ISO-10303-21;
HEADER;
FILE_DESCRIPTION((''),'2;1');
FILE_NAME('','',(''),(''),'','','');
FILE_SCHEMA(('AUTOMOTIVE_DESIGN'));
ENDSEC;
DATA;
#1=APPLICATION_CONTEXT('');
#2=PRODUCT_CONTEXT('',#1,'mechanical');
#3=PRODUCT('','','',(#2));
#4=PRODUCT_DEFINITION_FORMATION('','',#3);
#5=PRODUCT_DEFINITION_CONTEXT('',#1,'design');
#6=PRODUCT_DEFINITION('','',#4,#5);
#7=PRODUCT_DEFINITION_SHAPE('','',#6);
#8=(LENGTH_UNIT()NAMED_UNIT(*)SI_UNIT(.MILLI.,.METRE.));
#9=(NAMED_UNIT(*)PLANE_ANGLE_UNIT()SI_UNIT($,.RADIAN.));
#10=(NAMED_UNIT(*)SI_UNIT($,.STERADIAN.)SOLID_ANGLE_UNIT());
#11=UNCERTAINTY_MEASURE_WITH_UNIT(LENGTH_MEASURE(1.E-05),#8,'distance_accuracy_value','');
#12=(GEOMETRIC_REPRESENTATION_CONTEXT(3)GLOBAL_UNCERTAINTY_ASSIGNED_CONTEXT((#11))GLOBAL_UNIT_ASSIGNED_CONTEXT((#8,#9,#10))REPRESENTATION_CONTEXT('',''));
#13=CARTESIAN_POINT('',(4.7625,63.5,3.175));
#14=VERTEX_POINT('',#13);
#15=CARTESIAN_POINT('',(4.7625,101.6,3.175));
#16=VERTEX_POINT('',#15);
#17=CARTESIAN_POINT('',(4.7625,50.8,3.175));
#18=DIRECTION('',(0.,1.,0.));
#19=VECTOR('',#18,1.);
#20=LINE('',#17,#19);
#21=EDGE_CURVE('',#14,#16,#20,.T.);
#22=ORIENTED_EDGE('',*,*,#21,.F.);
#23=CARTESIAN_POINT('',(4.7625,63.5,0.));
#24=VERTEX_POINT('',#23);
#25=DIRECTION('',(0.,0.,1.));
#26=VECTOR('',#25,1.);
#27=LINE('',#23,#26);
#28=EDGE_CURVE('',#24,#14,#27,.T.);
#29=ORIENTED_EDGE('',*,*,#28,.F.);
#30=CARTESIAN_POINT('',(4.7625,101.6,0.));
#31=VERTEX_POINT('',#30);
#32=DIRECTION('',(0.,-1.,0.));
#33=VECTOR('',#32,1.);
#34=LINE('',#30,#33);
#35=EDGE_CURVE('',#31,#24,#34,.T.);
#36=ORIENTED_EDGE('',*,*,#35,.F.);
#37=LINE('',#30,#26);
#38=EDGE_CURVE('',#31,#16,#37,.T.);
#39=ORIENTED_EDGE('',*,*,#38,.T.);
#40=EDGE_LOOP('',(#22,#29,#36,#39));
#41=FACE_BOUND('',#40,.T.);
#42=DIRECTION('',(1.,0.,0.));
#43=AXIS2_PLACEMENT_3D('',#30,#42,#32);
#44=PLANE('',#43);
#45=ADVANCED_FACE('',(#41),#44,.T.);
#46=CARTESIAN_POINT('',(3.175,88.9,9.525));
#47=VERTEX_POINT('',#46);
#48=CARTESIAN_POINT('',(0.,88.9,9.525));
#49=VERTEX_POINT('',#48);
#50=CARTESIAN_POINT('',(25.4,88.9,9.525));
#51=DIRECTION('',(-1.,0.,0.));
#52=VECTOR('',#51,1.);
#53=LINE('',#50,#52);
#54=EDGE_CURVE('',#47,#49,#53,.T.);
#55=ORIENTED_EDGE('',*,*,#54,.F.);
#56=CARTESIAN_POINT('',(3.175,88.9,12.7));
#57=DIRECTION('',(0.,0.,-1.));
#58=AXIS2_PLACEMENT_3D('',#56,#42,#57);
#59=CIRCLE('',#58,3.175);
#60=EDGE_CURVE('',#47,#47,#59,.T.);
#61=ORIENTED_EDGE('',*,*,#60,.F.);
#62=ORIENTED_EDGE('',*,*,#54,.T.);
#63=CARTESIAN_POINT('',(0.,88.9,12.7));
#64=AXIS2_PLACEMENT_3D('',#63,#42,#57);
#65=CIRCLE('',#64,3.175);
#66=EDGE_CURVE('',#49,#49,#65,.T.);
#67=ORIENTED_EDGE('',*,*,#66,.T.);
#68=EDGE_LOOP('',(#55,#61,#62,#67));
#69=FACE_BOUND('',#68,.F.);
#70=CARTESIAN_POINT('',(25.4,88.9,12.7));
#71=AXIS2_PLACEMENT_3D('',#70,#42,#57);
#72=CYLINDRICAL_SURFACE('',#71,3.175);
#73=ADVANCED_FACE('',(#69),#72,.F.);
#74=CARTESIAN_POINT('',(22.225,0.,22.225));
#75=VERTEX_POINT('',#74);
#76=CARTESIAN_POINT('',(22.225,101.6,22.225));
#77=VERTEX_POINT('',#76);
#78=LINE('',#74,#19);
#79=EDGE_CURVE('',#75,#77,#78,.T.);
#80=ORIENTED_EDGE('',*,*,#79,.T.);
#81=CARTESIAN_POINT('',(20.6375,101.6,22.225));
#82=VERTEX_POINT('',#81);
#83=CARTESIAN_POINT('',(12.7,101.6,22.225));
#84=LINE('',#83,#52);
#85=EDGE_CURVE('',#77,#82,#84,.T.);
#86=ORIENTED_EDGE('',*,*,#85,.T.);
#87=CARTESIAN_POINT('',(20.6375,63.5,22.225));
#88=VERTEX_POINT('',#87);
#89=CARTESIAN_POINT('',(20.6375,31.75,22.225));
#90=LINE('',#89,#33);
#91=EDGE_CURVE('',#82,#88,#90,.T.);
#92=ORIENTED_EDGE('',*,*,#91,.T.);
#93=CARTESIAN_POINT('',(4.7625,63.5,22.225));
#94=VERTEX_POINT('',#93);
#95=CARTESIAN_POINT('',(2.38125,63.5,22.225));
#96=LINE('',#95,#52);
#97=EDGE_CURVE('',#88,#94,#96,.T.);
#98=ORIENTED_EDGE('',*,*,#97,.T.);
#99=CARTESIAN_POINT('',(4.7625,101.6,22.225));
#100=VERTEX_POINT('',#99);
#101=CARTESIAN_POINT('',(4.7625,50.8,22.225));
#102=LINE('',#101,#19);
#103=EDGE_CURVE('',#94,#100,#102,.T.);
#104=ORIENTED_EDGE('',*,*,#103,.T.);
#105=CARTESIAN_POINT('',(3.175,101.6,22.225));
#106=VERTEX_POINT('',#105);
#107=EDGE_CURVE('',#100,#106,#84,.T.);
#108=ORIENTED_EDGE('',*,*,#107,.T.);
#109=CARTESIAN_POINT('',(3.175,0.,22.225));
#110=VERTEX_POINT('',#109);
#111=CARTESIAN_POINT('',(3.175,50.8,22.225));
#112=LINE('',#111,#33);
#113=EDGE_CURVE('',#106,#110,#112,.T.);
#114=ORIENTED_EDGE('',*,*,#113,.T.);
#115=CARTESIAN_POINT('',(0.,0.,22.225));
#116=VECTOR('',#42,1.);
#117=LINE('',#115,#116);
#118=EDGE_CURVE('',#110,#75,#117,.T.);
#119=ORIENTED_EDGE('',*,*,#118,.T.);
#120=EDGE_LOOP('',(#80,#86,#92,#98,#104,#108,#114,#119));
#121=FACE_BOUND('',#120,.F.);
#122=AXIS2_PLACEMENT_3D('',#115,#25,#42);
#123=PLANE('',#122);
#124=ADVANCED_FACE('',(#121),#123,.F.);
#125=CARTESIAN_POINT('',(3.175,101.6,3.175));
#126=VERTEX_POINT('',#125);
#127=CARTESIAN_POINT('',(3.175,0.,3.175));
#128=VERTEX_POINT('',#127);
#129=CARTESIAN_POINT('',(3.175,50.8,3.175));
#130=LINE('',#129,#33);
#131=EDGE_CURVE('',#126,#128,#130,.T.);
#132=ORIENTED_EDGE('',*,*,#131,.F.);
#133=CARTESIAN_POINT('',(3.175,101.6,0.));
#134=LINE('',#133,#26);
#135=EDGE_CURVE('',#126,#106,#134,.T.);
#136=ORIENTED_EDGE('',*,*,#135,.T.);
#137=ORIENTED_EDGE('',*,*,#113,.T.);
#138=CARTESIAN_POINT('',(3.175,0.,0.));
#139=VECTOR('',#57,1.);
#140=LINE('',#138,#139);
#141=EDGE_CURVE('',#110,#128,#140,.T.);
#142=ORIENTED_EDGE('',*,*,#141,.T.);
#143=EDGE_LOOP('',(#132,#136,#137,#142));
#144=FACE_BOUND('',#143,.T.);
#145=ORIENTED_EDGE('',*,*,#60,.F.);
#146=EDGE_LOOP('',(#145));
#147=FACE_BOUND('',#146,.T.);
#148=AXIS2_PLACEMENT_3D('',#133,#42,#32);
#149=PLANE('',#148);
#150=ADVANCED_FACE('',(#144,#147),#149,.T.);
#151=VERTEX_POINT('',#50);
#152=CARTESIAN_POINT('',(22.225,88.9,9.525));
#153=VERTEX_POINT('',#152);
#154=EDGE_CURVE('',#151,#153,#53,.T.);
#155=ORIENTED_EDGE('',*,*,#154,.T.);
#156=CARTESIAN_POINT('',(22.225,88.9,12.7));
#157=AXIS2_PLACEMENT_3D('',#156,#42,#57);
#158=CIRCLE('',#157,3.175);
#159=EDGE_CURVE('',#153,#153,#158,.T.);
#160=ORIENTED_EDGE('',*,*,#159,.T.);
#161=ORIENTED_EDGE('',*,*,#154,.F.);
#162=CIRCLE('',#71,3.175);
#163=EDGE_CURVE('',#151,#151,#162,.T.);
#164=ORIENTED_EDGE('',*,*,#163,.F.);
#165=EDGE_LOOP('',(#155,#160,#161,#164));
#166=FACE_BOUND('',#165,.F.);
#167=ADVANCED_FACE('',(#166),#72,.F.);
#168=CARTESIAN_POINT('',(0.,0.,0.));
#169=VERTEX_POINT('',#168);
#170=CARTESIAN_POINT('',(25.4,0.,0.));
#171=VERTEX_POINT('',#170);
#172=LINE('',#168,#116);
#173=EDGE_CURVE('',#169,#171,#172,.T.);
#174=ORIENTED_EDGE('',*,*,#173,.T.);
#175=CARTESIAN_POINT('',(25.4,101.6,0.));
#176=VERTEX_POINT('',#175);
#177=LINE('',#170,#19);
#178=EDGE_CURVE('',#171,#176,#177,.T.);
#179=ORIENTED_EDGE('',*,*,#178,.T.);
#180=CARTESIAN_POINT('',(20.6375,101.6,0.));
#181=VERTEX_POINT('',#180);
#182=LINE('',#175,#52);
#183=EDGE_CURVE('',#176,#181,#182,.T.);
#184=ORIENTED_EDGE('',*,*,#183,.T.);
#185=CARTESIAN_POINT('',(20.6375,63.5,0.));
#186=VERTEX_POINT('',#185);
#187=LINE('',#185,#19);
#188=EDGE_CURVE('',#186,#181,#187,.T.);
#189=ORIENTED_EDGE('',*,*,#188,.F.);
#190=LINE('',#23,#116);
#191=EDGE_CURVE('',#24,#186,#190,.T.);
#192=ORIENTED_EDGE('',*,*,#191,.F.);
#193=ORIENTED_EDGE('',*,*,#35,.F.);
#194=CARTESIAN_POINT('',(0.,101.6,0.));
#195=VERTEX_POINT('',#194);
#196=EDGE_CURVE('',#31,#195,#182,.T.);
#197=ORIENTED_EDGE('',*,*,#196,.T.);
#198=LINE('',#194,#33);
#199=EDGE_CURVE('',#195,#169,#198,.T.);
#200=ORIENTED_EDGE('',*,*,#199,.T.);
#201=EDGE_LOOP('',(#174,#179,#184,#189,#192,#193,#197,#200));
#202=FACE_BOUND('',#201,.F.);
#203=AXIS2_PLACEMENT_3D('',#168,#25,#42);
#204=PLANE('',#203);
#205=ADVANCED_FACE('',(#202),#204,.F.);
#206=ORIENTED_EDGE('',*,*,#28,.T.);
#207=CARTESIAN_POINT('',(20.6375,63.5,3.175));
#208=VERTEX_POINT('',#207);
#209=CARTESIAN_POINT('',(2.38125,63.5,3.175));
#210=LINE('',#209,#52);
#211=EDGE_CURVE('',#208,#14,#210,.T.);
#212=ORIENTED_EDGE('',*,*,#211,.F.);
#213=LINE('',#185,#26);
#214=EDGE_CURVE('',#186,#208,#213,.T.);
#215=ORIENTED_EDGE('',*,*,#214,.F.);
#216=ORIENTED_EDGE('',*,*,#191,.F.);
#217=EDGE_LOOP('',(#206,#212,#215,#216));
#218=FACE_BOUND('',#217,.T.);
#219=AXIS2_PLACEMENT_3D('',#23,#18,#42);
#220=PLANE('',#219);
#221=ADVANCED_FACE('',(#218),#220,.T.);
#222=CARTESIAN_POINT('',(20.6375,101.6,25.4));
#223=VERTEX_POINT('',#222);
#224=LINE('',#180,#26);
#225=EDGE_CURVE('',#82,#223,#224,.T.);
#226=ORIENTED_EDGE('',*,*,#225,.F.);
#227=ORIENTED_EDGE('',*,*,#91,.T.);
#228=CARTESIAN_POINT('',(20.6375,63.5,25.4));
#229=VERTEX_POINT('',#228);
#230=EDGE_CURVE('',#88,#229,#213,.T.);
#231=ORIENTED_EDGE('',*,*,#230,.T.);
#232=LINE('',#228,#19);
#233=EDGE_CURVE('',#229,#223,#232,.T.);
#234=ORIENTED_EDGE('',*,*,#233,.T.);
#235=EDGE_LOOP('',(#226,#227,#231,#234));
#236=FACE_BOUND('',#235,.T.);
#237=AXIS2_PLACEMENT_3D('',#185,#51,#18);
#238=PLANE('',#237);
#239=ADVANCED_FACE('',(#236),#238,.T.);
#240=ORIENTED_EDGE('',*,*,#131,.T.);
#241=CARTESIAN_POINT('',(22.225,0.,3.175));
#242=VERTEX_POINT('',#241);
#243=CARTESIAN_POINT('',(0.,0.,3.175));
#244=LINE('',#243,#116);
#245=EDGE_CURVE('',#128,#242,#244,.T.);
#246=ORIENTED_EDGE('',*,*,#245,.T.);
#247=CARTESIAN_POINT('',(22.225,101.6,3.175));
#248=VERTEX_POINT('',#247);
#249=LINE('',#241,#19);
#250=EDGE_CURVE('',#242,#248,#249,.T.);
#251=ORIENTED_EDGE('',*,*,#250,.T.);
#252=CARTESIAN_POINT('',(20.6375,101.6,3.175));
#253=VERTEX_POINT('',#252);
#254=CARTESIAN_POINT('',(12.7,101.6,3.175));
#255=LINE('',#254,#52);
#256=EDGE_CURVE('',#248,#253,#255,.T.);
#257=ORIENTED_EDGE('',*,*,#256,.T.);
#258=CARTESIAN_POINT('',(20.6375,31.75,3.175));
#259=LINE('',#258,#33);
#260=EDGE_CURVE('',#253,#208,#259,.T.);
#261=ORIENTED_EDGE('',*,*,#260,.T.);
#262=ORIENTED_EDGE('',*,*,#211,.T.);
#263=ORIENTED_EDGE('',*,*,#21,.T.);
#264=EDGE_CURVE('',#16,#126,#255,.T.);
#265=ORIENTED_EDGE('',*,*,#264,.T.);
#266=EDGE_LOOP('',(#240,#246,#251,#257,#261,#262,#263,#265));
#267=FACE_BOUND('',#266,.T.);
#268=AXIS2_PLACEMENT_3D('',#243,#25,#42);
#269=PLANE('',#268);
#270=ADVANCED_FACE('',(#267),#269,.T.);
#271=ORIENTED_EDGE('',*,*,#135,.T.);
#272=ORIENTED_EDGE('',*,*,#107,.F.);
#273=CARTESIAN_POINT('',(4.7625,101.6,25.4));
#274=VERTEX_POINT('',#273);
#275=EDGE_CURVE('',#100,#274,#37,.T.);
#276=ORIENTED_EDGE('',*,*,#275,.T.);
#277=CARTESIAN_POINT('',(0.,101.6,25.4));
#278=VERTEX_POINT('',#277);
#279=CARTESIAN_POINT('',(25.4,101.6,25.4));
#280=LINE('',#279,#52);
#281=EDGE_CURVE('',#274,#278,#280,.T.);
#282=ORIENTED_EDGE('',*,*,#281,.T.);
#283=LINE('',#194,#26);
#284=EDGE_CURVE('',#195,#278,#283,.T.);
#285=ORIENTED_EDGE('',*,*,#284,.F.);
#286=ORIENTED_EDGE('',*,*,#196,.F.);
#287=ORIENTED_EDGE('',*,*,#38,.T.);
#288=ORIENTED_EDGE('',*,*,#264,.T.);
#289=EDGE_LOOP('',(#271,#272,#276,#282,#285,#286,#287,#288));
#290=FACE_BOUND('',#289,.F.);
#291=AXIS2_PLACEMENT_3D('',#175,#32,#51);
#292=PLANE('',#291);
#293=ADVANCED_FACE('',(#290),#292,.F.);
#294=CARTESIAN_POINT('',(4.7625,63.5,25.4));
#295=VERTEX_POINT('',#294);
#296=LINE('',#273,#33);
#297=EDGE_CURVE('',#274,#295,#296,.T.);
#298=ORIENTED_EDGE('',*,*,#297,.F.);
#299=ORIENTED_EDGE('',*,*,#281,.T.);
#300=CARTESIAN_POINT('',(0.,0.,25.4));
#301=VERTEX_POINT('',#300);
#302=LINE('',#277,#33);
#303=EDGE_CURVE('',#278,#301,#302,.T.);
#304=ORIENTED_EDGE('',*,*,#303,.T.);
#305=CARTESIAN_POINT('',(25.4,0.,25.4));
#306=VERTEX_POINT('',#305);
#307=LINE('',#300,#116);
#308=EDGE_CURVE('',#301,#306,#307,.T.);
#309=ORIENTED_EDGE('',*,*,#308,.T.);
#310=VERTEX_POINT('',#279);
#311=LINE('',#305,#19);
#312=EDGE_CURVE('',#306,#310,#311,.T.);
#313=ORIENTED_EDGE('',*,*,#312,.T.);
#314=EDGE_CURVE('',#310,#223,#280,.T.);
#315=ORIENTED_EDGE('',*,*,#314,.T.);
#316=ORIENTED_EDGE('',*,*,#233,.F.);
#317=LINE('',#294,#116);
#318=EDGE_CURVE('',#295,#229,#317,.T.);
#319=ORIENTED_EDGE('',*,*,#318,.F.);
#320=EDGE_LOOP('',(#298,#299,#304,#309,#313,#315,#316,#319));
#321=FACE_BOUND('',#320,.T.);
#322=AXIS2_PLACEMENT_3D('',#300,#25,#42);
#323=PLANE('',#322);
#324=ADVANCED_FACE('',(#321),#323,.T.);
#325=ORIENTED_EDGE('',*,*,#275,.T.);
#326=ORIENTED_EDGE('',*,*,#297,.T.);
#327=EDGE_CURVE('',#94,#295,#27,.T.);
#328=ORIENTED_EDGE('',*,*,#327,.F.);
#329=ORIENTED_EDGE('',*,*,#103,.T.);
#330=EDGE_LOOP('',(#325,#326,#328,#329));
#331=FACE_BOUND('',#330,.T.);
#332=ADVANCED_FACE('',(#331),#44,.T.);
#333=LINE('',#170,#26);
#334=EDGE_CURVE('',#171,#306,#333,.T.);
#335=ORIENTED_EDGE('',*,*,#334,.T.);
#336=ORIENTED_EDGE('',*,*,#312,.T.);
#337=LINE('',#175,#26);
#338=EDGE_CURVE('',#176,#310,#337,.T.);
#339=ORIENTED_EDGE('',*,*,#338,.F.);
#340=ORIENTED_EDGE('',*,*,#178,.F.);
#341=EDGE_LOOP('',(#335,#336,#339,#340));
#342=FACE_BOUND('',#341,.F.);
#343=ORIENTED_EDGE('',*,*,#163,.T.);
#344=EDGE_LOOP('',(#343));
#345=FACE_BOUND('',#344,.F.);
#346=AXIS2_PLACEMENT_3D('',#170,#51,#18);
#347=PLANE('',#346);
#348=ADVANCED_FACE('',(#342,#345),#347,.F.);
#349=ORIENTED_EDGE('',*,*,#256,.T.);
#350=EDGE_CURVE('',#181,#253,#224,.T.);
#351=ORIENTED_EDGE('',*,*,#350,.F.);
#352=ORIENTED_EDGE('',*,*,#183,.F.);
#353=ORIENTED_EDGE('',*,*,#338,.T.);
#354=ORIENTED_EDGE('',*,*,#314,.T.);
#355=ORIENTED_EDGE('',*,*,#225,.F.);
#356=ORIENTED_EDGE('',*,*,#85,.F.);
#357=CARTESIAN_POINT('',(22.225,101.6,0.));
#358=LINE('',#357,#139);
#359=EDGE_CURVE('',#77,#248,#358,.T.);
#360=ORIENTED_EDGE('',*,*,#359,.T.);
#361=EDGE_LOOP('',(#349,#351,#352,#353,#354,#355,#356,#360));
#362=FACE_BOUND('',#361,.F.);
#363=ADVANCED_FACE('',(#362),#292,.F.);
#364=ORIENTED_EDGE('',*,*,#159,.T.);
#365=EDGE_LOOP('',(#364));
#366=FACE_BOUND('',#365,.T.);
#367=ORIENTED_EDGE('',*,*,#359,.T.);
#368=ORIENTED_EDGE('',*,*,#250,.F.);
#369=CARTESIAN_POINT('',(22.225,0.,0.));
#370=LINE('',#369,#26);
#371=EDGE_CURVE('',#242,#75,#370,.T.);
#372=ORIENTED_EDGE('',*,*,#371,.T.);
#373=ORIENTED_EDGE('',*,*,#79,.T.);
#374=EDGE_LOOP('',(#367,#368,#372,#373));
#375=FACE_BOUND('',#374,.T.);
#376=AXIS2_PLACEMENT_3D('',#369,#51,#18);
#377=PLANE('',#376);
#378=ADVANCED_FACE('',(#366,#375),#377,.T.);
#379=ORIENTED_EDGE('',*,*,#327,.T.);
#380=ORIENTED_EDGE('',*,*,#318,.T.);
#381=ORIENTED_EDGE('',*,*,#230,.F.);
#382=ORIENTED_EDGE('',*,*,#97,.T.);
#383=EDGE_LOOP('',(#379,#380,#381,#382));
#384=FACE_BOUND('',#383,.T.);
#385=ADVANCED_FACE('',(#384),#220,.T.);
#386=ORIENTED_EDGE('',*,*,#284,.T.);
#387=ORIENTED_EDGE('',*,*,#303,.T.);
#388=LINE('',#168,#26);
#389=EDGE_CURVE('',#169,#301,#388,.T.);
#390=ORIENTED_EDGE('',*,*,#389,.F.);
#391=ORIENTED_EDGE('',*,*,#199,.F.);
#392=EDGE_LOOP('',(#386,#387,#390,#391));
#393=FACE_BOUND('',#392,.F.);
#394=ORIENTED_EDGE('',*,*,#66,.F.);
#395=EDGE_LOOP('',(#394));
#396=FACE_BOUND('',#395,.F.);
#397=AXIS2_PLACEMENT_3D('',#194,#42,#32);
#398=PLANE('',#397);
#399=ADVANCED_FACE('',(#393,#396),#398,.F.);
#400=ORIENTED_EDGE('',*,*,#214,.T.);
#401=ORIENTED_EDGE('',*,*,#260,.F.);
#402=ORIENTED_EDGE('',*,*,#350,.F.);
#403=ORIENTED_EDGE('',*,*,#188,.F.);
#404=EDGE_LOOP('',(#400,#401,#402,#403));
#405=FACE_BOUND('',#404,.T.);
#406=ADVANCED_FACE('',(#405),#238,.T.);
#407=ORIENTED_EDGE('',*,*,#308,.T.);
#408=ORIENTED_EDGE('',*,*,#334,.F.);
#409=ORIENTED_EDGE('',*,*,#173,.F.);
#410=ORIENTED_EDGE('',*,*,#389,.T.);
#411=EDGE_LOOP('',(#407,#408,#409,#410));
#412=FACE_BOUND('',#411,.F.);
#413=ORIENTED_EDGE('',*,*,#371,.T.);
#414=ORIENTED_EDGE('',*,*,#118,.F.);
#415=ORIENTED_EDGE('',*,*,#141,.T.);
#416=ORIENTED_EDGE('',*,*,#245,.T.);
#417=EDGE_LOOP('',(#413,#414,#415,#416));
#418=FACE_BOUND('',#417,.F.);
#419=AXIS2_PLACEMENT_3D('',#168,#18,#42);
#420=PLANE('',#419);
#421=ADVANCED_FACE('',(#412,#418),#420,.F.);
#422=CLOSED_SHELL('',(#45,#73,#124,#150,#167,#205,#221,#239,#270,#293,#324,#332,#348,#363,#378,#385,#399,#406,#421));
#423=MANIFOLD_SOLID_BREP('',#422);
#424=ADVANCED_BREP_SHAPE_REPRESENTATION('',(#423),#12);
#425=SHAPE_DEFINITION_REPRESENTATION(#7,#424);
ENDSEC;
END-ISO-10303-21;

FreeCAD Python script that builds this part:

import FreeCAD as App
import Part
import Sketcher

V = App.Vector
Q = App.Units.Quantity


def faces_at(feature, points):
    """Names of the faces that lie closest to the given points."""
    faces = feature.Shape.Faces
    near = lambda p: min(range(len(faces)), key=lambda i: faces[i].distToShape(Part.Vertex(*p))[0])
    return sorted({f"Face{near(p) + 1}" for p in points})

doc = App.newDocument("Part")
body = doc.addObject("PartDesign::Body", "Body")

# Sketch on XY plane
sketch1 = body.newObject("Sketcher::SketchObject", "Sketch")
sketch1.AttachmentSupport = (doc.getObject("XY_Plane"), [""])
sketch1.MapMode = "FlatFace"
sketch1.addGeometry([
    Part.LineSegment(V(0, 102, 0), V(0, 0, 0)),
    Part.LineSegment(V(0, 0, 0), V(25, 0, 0)),
    Part.LineSegment(V(25, 0, 0), V(25, 102, 0)),
    Part.LineSegment(V(25, 102, 0), V(0, 102, 0)),
], False)
sketch1.addConstraint([
    Sketcher.Constraint("Coincident", 0, 2, 1, 1),
    Sketcher.Constraint("Coincident", 1, 2, 2, 1),
    Sketcher.Constraint("Coincident", 2, 2, 3, 1),
    Sketcher.Constraint("Coincident", 3, 2, 0, 1),
    Sketcher.Constraint("Vertical", 0),
    Sketcher.Constraint("Horizontal", 1),
    Sketcher.Constraint("Vertical", 2),
    Sketcher.Constraint("Horizontal", 3),
    Sketcher.Constraint("Coincident", 0, 2, -1, 1),
    Sketcher.Constraint("DistanceX", 1, 1, 1, 2, Q("1 in")),
    Sketcher.Constraint("DistanceY", 0, 2, 0, 1, Q("4 in")),
])
pad1 = body.newObject("PartDesign::Pad", "Pad")
pad1.Profile = sketch1
pad1.Length = Q("1 in")
doc.recompute()

thickness = body.newObject("PartDesign::Thickness", "Thickness")
thickness.Base = (pad1, faces_at(pad1, [(16.933, 101.6, 16.933), (8.467, 0, 8.467)]))
thickness.Value = Q("0.125 in")
thickness.Reversed = True
thickness.Join = "Intersection"

# Sketch on YZ plane
sketch2 = body.newObject("Sketcher::SketchObject", "Sketch001")
sketch2.AttachmentSupport = (doc.getObject("YZ_Plane"), [""])
sketch2.MapMode = "FlatFace"
sketch2.AttachmentOffset = App.Placement(V(0, 0, 1 * 25.4), App.Rotation())
sketch2.addGeometry(Part.Circle(V(88.9, 12.7, 0), V(0, 0, 1), 3.2), False)
sketch2.addConstraint([
    Sketcher.Constraint("Diameter", 0, Q("0.25 in")),
    Sketcher.Constraint("DistanceX", -1, 1, 0, 3, Q("3.5 in")),
    Sketcher.Constraint("DistanceY", -1, 1, 0, 3, Q("0.5 in")),
])
pocket1 = body.newObject("PartDesign::Pocket", "Pocket")
pocket1.Profile = sketch2
pocket1.Type = "ThroughAll"

# Sketch on XY plane
sketch3 = body.newObject("Sketcher::SketchObject", "Sketch002")
sketch3.AttachmentSupport = (doc.getObject("XY_Plane"), [""])
sketch3.MapMode = "FlatFace"
sketch3.addGeometry([
    Part.LineSegment(V(5, 102, 0), V(21, 102, 0)),
    Part.LineSegment(V(21, 102, 0), V(21, 64, 0)),
    Part.LineSegment(V(21, 64, 0), V(5, 64, 0)),
    Part.LineSegment(V(5, 64, 0), V(5, 102, 0)),
], False)
sketch3.addConstraint([
    Sketcher.Constraint("Coincident", 0, 2, 1, 1),
    Sketcher.Constraint("Coincident", 1, 2, 2, 1),
    Sketcher.Constraint("Coincident", 2, 2, 3, 1),
    Sketcher.Constraint("Coincident", 3, 2, 0, 1),
    Sketcher.Constraint("Horizontal", 0),
    Sketcher.Constraint("Vertical", 1),
    Sketcher.Constraint("Horizontal", 2),
    Sketcher.Constraint("Vertical", 3),
    Sketcher.Constraint("DistanceY", 1, 2, 1, 1, Q("1.5 in")),
    Sketcher.Constraint("DistanceX", -1, 1, 2, 2, Q("0.1875 in")),
    Sketcher.Constraint("DistanceY", -1, 1, 0, 2, Q("4 in")),
    Sketcher.Constraint("DistanceX", 0, 1, 0, 2, Q("0.625 in")),
])
pocket2 = body.newObject("PartDesign::Pocket", "Pocket001")
pocket2.Profile = sketch3
pocket2.Length = Q("1 in")
pocket2.Reversed = True

doc.recompute()
